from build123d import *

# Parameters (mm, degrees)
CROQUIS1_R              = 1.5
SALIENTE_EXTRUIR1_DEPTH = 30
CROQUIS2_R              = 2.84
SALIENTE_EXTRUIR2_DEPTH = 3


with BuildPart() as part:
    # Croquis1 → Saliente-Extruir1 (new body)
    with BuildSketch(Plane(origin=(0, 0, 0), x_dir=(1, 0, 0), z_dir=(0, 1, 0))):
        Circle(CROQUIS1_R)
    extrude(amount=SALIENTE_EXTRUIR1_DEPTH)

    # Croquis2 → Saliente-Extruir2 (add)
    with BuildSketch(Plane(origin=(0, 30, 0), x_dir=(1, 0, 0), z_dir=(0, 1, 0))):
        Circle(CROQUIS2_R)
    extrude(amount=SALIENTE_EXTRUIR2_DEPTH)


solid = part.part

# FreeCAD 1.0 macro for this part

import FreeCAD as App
import Part
import Sketcher
Q = App.Units.Quantity

doc = App.newDocument("Part")
body = doc.addObject("PartDesign::Body", "Body")

sketch1 = body.newObject("Sketcher::SketchObject", "Sketch")
sketch1.AttachmentSupport = (doc.getObject("XZ_Plane"), [""])
sketch1.MapMode = "FlatFace"
sketch1.addGeometry(Part.Circle(App.Vector(0, 0, 0), App.Vector(0, 0, 1), 1.5), False)
sketch1.addConstraint([
    Sketcher.Constraint("Coincident", 0, 3, -1, 1),
    Sketcher.Constraint("Diameter", 0, Q("3 mm")),
])
pad1 = body.newObject("PartDesign::Pad", "Pad")
pad1.Profile = sketch1
pad1.Length = 30
pad1.Reversed = True

sketch2 = body.newObject("Sketcher::SketchObject", "Sketch001")
sketch2.AttachmentSupport = (doc.getObject("XZ_Plane"), [""])
sketch2.MapMode = "FlatFace"
sketch2.AttachmentOffset = App.Placement(App.Vector(0, 0, -30), App.Rotation())
sketch2.addGeometry(Part.Circle(App.Vector(0, 0, 0), App.Vector(0, 0, 1), 2.84), False)
sketch2.addConstraint([
    Sketcher.Constraint("Coincident", 0, 3, -1, 1),
    Sketcher.Constraint("Diameter", 0, Q("5.68 mm")),
])
pad2 = body.newObject("PartDesign::Pad", "Pad001")
pad2.Profile = sketch2
pad2.Length = 3
pad2.Reversed = True

doc.recompute()
